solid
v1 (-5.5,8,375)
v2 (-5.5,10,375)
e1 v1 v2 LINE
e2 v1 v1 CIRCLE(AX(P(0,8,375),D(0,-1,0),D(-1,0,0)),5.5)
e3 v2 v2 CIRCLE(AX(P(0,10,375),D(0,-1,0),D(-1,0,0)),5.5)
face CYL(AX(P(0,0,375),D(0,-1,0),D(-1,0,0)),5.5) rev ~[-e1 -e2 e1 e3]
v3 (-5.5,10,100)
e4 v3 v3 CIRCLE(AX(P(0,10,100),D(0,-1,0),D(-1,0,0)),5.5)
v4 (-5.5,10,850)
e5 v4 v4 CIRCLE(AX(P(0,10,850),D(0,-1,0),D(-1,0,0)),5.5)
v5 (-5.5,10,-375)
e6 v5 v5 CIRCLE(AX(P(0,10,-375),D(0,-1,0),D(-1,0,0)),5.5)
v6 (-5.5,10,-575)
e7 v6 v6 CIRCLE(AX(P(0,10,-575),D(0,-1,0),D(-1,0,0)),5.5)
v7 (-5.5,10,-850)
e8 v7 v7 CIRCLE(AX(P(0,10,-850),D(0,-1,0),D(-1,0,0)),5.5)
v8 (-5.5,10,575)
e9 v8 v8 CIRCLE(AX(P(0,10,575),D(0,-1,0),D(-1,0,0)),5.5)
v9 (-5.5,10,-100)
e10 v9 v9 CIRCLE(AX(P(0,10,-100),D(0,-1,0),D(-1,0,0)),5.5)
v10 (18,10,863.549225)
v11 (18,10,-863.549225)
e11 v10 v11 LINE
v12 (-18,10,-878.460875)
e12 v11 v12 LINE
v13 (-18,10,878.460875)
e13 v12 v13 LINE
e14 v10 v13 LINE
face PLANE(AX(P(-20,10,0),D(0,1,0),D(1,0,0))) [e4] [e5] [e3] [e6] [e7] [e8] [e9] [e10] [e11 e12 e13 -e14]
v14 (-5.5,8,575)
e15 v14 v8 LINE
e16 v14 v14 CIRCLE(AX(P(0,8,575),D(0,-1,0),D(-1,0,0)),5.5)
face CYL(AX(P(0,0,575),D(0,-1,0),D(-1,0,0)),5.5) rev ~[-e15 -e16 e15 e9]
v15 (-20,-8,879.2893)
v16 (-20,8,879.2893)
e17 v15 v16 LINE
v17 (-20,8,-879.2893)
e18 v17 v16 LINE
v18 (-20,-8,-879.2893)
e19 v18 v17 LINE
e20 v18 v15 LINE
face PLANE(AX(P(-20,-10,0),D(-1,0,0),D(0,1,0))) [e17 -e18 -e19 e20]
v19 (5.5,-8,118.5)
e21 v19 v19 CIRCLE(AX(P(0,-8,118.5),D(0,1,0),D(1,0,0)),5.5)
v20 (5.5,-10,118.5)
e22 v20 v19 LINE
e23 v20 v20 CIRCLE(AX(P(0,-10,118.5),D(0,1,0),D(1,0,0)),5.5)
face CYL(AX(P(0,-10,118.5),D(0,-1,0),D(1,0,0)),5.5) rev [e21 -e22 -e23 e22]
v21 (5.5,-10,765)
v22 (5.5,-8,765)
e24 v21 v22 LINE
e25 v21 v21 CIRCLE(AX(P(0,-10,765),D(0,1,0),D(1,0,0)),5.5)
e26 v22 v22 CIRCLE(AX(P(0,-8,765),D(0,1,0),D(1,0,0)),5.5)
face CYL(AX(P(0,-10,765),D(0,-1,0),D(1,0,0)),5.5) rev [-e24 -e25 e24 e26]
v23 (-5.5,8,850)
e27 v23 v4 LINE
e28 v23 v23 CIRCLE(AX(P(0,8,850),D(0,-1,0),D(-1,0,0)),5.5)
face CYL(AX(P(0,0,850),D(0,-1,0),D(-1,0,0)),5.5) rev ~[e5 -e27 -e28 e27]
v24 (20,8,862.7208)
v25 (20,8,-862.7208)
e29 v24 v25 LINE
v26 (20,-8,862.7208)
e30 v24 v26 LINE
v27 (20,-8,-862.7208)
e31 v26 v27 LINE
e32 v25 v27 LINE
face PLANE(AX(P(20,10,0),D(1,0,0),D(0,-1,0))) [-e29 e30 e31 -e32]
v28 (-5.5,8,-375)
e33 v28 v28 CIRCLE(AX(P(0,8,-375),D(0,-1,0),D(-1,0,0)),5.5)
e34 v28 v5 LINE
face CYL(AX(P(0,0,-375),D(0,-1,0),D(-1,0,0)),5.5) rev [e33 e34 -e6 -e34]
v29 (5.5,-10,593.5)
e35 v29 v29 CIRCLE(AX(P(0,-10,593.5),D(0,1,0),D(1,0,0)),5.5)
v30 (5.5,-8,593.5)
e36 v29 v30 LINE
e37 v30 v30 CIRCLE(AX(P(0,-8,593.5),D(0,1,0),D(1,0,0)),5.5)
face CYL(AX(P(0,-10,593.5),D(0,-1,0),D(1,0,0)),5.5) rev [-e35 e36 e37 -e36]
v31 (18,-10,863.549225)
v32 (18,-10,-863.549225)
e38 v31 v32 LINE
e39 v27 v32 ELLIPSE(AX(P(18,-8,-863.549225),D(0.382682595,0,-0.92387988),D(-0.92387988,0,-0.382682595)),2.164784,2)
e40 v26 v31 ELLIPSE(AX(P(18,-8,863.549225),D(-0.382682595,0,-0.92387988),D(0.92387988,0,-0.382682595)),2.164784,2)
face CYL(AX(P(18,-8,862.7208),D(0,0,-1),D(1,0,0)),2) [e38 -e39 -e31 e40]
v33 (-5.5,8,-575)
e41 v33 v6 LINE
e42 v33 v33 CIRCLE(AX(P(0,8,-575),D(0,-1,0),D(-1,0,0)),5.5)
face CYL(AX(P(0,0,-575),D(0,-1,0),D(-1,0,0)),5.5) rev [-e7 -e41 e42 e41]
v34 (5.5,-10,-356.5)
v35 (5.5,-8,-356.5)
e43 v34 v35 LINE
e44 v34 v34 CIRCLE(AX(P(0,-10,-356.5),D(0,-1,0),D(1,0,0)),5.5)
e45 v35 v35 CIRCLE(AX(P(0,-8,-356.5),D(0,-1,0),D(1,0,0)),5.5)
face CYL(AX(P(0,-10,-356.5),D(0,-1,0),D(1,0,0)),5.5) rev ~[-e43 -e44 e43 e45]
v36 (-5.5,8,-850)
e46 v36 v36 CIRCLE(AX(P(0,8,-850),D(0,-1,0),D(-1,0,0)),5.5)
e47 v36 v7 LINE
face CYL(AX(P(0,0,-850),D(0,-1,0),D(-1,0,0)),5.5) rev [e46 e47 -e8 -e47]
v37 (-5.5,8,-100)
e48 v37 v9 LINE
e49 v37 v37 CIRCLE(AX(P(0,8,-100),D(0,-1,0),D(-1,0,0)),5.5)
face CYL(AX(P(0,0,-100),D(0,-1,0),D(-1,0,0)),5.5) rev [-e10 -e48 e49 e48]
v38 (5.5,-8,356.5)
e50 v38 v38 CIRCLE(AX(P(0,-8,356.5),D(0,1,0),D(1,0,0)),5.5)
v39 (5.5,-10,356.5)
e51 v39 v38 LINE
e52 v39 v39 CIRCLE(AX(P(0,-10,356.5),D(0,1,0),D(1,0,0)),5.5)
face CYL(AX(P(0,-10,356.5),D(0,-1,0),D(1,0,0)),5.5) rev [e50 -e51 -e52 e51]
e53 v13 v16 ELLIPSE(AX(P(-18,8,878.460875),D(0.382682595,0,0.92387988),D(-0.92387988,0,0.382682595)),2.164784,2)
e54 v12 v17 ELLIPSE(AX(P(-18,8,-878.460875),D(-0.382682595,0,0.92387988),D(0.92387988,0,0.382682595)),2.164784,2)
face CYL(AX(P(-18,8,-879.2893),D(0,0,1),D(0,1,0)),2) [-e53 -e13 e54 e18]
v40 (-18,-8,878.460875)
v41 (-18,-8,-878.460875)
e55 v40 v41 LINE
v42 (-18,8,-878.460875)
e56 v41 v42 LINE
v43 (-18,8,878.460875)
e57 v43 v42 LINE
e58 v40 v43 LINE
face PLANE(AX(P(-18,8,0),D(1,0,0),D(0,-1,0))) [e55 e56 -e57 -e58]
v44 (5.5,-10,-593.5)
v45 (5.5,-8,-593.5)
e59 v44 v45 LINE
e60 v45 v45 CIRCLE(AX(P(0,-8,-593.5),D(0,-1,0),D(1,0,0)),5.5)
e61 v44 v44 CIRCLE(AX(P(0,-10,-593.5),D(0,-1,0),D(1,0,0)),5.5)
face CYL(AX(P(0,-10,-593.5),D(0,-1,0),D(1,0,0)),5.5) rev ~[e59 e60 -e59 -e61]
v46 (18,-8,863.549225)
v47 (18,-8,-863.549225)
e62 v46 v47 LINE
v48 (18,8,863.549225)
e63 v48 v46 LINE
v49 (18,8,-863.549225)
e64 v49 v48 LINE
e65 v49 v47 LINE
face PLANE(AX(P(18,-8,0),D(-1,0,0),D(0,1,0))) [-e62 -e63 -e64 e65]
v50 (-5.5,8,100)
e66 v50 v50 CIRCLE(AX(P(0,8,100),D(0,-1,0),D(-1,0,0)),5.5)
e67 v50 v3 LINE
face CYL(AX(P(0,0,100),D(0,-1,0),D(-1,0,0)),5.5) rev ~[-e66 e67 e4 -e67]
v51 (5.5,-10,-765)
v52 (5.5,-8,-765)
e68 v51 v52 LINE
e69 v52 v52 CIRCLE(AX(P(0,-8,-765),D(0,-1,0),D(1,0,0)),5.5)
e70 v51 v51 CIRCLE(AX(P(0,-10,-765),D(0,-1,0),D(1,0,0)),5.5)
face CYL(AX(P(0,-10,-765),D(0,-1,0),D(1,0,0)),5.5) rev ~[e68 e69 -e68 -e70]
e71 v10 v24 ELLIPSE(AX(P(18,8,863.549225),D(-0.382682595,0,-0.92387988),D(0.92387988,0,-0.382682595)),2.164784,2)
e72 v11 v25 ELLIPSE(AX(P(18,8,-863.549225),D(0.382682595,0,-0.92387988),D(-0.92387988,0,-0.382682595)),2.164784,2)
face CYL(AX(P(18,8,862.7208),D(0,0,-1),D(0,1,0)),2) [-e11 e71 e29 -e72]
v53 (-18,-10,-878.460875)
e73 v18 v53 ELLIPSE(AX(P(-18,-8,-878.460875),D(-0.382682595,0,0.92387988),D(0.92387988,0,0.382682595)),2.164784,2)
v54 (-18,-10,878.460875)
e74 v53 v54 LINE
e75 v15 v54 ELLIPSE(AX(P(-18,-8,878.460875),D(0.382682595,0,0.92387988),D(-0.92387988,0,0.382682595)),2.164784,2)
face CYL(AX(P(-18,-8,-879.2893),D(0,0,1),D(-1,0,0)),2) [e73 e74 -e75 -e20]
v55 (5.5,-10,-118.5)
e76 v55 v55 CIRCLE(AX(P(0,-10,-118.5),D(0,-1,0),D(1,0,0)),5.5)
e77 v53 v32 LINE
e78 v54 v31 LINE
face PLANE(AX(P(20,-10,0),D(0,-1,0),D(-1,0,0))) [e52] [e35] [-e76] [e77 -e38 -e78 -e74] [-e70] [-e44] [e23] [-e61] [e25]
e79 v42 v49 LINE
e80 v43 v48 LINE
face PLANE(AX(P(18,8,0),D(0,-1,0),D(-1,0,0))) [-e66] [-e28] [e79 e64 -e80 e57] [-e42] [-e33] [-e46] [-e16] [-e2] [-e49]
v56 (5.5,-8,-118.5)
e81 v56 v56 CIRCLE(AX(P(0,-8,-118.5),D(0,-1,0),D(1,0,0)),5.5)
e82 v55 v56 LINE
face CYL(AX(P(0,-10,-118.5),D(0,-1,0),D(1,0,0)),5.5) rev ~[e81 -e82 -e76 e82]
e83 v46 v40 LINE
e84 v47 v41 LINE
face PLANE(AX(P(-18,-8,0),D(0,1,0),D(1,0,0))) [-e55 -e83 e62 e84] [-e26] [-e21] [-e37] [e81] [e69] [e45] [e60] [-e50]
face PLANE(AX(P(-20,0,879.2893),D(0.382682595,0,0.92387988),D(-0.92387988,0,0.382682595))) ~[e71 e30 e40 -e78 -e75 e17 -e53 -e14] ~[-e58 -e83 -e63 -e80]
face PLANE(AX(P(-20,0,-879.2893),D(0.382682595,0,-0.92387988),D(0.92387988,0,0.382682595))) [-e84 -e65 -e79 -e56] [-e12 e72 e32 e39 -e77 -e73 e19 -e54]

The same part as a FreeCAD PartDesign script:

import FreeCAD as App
import Part
import Sketcher

V = App.Vector
Q = App.Units.Quantity


def edges_at(feature, points):
    """Names of the edges that pass closest to the given points."""
    edges = feature.Shape.Edges
    near = lambda p: min(range(len(edges)), key=lambda i: edges[i].distToShape(Part.Vertex(*p))[0])
    return sorted({f"Edge{near(p) + 1}" for p in points})


def add_polygon(sketch, points):
    """Adds a closed chain of lines whose ends are joined by coincident constraints."""
    first, n = sketch.GeometryCount, len(points)
    for a, b in zip(points, points[1:] + points[:1]):
        sketch.addGeometry(Part.LineSegment(App.Vector(*a, 0), App.Vector(*b, 0)), False)
    for i in range(n):
        sketch.addConstraint(Sketcher.Constraint("Coincident", first + i, 2, first + (i + 1) % n, 1))

doc = App.newDocument("Part")
body = doc.addObject("PartDesign::Body", "Body")

sketch1 = body.newObject("Sketcher::SketchObject", "Sketch")
sketch1.AttachmentSupport = (doc.getObject("XY_Plane"), [""])
sketch1.MapMode = "FlatFace"
add_polygon(sketch1, [(20, 10), (-20, 10), (-20, -10), (20, -10)])
add_polygon(sketch1, [(-18, 8), (18, 8), (18, -8), (-18, -8)])
sketch1.addConstraint([
    Sketcher.Constraint("Horizontal", 0),
    Sketcher.Constraint("Vertical", 1),
    Sketcher.Constraint("Horizontal", 2),
    Sketcher.Constraint("Vertical", 3),
    Sketcher.Constraint("Horizontal", 4),
    Sketcher.Constraint("Vertical", 5),
    Sketcher.Constraint("Horizontal", 6),
    Sketcher.Constraint("Vertical", 7),
    Sketcher.Constraint("Symmetric", 0, 2, 2, 2, -1, 1),
    Sketcher.Constraint("Symmetric", 4, 2, 6, 2, -1, 1),
    Sketcher.Constraint("DistanceX", 0, 2, 0, 1, Q("40 mm")),
    Sketcher.Constraint("DistanceY", 1, 2, 1, 1, Q("20 mm")),
    Sketcher.Constraint("DistanceX", 4, 2, 3, 2, Q("2 mm")),
    Sketcher.Constraint("DistanceY", 4, 2, 3, 2, Q("2 mm")),
])
pad1 = body.newObject("PartDesign::Pad", "Pad")
pad1.Profile = sketch1
pad1.Length = 1900
pad1.Midplane = True

sketch2 = body.newObject("Sketcher::SketchObject", "Sketch001")
sketch2.AttachmentSupport = (doc.getObject("XZ_Plane"), [""])
sketch2.MapMode = "FlatFace"
add_polygon(sketch2, [(20, -950), (-20, -950), (-20, -879), (20, -863)])
sketch2.addConstraint([
    Sketcher.Constraint("Horizontal", 0),
    Sketcher.Constraint("Vertical", 1),
    Sketcher.Constraint("Vertical", 3),
    Sketcher.Constraint("DistanceX", 0, 2, 0, 1, Q("40 mm")),
    Sketcher.Constraint("DistanceX", 0, 2, -1, 1, Q("20 mm")),
    Sketcher.Constraint("DistanceY", 0, 2, -1, 1, Q("950 mm")),
    Sketcher.Constraint("Angle", 2, Q("22.5 deg")),
    Sketcher.Constraint("DistanceY", 1, 1, 1, 2, Q("70.7107 mm")),
])
pocket1 = body.newObject("PartDesign::Pocket", "Pocket")
pocket1.Profile = sketch2
pocket1.Type = "ThroughAll"
pocket1.Midplane = True
doc.recompute()

mirrored = body.newObject("PartDesign::Mirrored", "Mirrored")
mirrored.Originals = [pocket1]
mirrored.MirrorPlane = (doc.getObject("XY_Plane"), [""])
body.Tip = mirrored

sketch3 = body.newObject("Sketcher::SketchObject", "Sketch002")
sketch3.AttachmentSupport = (doc.getObject("XZ_Plane"), [""])
sketch3.MapMode = "FlatFace"
sketch3.addGeometry([
    Part.Circle(V(0, -100, 0), V(0, 0, 1), 6),
    Part.Circle(V(0, -375, 0), V(0, 0, 1), 6),
    Part.Circle(V(0, -575, 0), V(0, 0, 1), 6),
    Part.Circle(V(0, -850, 0), V(0, 0, 1), 6),
], False)
sketch3.addConstraint([
    Sketcher.Constraint("Equal", 0, 1),
    Sketcher.Constraint("Equal", 1, 2),
    Sketcher.Constraint("Equal", 2, 3),
    Sketcher.Constraint("PointOnObject", 0, 3, -2),
    Sketcher.Constraint("PointOnObject", 1, 3, -2),
    Sketcher.Constraint("PointOnObject", 2, 3, -2),
    Sketcher.Constraint("PointOnObject", 3, 3, -2),
    Sketcher.Constraint("Diameter", 0, Q("11 mm")),
    Sketcher.Constraint("DistanceY", 0, 3, -1, 1, Q("100 mm")),
    Sketcher.Constraint("DistanceY", 1, 3, 0, 3, Q("275 mm")),
    Sketcher.Constraint("DistanceY", 2, 3, 0, 3, Q("475 mm")),
    Sketcher.Constraint("DistanceY", 3, 3, 2, 3, Q("275 mm")),
])
pocket2 = body.newObject("PartDesign::Pocket", "Pocket001")
pocket2.Profile = sketch3
pocket2.Type = "ThroughAll"

sketch4 = body.newObject("Sketcher::SketchObject", "Sketch003")
sketch4.AttachmentSupport = (doc.getObject("XZ_Plane"), [""])
sketch4.MapMode = "FlatFace"
sketch4.AttachmentOffset = App.Placement(V(0, 0, 10), App.Rotation())
sketch4.addGeometry([
    Part.Circle(V(0, -765, 0), V(0, 0, 1), 6),
    Part.Circle(V(0, -118, 0), V(0, 0, 1), 6),
    Part.Circle(V(0, -594, 0), V(0, 0, 1), 6),
    Part.Circle(V(0, -356, 0), V(0, 0, 1), 6),
], False)
sketch4.addConstraint([
    Sketcher.Constraint("Equal", 0, 1),
    Sketcher.Constraint("Equal", 1, 2),
    Sketcher.Constraint("Equal", 2, 3),
    Sketcher.Constraint("PointOnObject", 0, 3, -2),
    Sketcher.Constraint("PointOnObject", 1, 3, -2),
    Sketcher.Constraint("PointOnObject", 2, 3, -2),
    Sketcher.Constraint("PointOnObject", 3, 3, -2),
    Sketcher.Constraint("Diameter", 0, Q("11 mm")),
    Sketcher.Constraint("DistanceY", 0, 3, -1, 1, Q("765 mm")),
    Sketcher.Constraint("DistanceY", 2, 3, 1, 3, Q("475 mm")),
    Sketcher.Constraint("DistanceY", 2, 3, 3, 3, Q("237 mm")),
    Sketcher.Constraint("DistanceY", 1, 3, -1, 1, Q("118.5 mm")),
])
pocket3 = body.newObject("PartDesign::Pocket", "Pocket002")
pocket3.Profile = sketch4
pocket3.Length = 2
doc.recompute()

mirrored2 = body.newObject("PartDesign::Mirrored", "Mirrored001")
mirrored2.Originals = [pocket2, pocket3]
mirrored2.MirrorPlane = (doc.getObject("XY_Plane"), [""])
body.Tip = mirrored2
doc.recompute()

fillet = body.newObject("PartDesign::Fillet", "Fillet")
fillet.Base = (mirrored2, edges_at(mirrored2, [
    (-20, 10, 0),
    (-20, -10, 0),
    (20, -10, 0),
    (20, 10, 0),
]))
fillet.Radius = 2

doc.recompute()
